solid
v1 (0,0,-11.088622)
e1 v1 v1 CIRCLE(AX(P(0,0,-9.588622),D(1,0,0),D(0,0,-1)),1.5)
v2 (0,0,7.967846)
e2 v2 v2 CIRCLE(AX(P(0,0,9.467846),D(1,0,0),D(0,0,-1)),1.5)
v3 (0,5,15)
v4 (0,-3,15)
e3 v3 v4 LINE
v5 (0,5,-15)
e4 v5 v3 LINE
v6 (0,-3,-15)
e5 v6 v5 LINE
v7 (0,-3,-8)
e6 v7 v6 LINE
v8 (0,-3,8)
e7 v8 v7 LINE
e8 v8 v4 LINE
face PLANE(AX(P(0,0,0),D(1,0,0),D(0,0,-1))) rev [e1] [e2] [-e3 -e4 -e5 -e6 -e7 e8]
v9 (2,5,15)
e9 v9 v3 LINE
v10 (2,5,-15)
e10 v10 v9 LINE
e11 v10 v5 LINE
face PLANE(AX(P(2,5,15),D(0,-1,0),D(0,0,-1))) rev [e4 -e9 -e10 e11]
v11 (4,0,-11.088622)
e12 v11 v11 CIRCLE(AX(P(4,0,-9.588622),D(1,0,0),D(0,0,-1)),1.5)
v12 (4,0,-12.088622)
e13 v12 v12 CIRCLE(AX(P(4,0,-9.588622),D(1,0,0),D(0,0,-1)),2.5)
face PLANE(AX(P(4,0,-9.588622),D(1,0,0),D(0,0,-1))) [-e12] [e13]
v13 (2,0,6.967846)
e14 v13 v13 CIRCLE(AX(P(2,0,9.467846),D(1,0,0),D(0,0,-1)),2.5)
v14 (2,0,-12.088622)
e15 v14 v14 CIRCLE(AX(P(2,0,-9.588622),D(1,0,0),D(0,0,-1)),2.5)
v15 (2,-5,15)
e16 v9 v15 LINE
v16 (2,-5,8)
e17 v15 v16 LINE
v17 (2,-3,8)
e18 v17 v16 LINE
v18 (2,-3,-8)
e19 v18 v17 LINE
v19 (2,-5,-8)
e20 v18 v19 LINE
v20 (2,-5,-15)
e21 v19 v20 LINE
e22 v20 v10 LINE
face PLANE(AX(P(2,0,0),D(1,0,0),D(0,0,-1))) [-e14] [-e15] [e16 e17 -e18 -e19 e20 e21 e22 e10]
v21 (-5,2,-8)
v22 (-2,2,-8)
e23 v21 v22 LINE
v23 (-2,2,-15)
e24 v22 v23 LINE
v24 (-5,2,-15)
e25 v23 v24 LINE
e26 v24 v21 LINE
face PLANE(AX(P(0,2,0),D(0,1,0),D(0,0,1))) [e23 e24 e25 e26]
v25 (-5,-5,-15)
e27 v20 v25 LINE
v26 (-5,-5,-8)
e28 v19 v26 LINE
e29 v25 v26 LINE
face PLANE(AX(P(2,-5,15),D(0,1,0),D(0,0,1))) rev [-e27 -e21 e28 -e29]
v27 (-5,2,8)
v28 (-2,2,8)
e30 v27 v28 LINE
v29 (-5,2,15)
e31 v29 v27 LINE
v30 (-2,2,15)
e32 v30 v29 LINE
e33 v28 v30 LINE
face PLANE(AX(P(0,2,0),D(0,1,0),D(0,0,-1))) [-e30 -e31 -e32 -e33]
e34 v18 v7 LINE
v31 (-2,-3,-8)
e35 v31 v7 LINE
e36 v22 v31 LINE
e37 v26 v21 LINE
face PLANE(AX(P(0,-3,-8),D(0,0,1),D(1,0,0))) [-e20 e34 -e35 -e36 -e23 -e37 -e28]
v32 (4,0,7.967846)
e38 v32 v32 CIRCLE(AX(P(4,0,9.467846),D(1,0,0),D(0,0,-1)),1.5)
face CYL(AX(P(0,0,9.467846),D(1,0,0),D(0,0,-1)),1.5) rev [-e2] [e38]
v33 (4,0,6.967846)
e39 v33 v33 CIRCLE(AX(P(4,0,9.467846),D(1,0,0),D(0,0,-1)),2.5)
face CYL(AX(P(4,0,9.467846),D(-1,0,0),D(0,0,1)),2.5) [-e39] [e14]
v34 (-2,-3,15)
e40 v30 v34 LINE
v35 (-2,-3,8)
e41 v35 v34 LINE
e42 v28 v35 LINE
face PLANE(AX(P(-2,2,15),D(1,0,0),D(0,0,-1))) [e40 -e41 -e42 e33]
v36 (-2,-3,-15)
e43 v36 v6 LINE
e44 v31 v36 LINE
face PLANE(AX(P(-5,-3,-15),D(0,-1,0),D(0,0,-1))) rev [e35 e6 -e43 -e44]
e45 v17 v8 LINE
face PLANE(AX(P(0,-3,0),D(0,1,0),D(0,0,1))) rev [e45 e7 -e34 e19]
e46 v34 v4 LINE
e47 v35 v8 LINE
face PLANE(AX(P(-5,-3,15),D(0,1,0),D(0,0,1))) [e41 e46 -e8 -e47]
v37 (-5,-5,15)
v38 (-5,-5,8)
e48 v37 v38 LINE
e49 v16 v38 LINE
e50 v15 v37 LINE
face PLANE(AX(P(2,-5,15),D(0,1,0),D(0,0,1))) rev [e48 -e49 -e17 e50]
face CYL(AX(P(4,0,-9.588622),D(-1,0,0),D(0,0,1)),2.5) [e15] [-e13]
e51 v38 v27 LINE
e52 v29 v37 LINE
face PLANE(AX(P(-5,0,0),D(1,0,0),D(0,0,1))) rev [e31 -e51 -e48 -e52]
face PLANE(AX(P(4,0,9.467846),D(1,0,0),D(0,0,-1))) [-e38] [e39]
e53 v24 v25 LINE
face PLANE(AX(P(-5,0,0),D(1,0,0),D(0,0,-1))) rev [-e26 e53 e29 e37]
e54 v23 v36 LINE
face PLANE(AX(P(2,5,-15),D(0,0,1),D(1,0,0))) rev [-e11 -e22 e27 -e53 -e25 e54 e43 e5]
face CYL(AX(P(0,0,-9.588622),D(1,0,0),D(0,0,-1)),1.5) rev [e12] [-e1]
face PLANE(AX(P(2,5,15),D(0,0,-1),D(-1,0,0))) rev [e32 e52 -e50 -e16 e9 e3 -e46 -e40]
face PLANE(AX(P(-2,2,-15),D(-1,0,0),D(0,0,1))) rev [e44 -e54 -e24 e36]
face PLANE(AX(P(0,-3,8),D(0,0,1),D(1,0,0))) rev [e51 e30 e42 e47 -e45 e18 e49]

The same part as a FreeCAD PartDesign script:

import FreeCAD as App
import Part
import Sketcher
Q = App.Units.Quantity


def add_polygon(sketch, points):
    """Adds a closed chain of lines whose ends are joined by coincident constraints."""
    first, n = sketch.GeometryCount, len(points)
    for a, b in zip(points, points[1:] + points[:1]):
        sketch.addGeometry(Part.LineSegment(App.Vector(*a, 0), App.Vector(*b, 0)), False)
    for i in range(n):
        sketch.addConstraint(Sketcher.Constraint("Coincident", first + i, 2, first + (i + 1) % n, 1))

doc = App.newDocument("Part")
body = doc.addObject("PartDesign::Body", "Body")

# Sketch on YZ plane
sketch1 = doc.addObject("Sketcher::SketchObject", "Sketch")
body.addObject(sketch1)
sketch1.AttachmentSupport = (doc.YZ_Plane, [""])
sketch1.MapMode = "FlatFace"
add_polygon(sketch1, [(5, 15), (-5, 15), (-5, -15), (5, -15)])  # lines 0-3
sketch1.addConstraint([
    Sketcher.Constraint("Horizontal", 0),
    Sketcher.Constraint("Vertical", 1),
    Sketcher.Constraint("Horizontal", 2),
    Sketcher.Constraint("Vertical", 3),
    Sketcher.Constraint("Symmetric", 0, 2, 2, 2, -1, 1),
    Sketcher.Constraint("DistanceX", 0, 2, 0, 1, Q("10 mm")),
    Sketcher.Constraint("DistanceY", 1, 2, 1, 1, Q("30 mm")),
])
pad1 = doc.addObject("PartDesign::Pad", "Pad")
body.addObject(pad1)
pad1.Profile = sketch1
pad1.Length = 2

# Sketch on YZ plane
sketch2 = doc.addObject("Sketcher::SketchObject", "Sketch001")
body.addObject(sketch2)
sketch2.AttachmentSupport = (doc.YZ_Plane, [""])
sketch2.MapMode = "FlatFace"
sketch2.AttachmentOffset = App.Placement(App.Vector(0, 0, 2), App.Rotation())
sketch2.addGeometry([
    Part.Circle(App.Vector(0, 9.5, 0), App.Vector(0, 0, 1), 2.5),
    Part.Circle(App.Vector(0, -9.6, 0), App.Vector(0, 0, 1), 2.5),
], False)
sketch2.addConstraint([
    Sketcher.Constraint("Equal", 0, 1),
    Sketcher.Constraint("PointOnObject", 0, 3, -2),
    Sketcher.Constraint("PointOnObject", 1, 3, -2),
    Sketcher.Constraint("Diameter", 0, Q("5 mm")),
    Sketcher.Constraint("DistanceY", 1, 3, 0, 3, Q("19.056469 mm")),
    Sketcher.Constraint("DistanceY", -1, 1, 0, 3, Q("9.467846 mm")),
])
pad2 = doc.addObject("PartDesign::Pad", "Pad001")
body.addObject(pad2)
pad2.Profile = sketch2
pad2.Length = 2

# Sketch on YZ plane
sketch3 = doc.addObject("Sketcher::SketchObject", "Sketch002")
body.addObject(sketch3)
sketch3.AttachmentSupport = (doc.YZ_Plane, [""])
sketch3.MapMode = "FlatFace"
sketch3.AttachmentOffset = App.Placement(App.Vector(0, 0, 4), App.Rotation())
sketch3.addGeometry(Part.Circle(App.Vector(0, 9.5, 0), App.Vector(0, 0, 1), 1.5), False)
sketch3.addConstraint([
    Sketcher.Constraint("PointOnObject", 0, 3, -2),
    Sketcher.Constraint("Diameter", 0, Q("3 mm")),
    Sketcher.Constraint("DistanceY", -1, 1, 0, 3, Q("9.467846 mm")),
])
pocket1 = doc.addObject("PartDesign::Pocket", "Pocket")
body.addObject(pocket1)
pocket1.Profile = sketch3
pocket1.Type = "ThroughAll"

# Sketch on YZ plane
sketch4 = doc.addObject("Sketcher::SketchObject", "Sketch003")
body.addObject(sketch4)
sketch4.AttachmentSupport = (doc.YZ_Plane, [""])
sketch4.MapMode = "FlatFace"
sketch4.AttachmentOffset = App.Placement(App.Vector(0, 0, 4), App.Rotation())
sketch4.addGeometry(Part.Circle(App.Vector(0, -9.6, 0), App.Vector(0, 0, 1), 1.5), False)
sketch4.addConstraint([
    Sketcher.Constraint("PointOnObject", 0, 3, -2),
    Sketcher.Constraint("Diameter", 0, Q("3 mm")),
    Sketcher.Constraint("DistanceY", 0, 3, -1, 1, Q("9.588622 mm")),
])
pocket2 = doc.addObject("PartDesign::Pocket", "Pocket001")
body.addObject(pocket2)
pocket2.Profile = sketch4
pocket2.Type = "ThroughAll"

# Sketch on XZ plane
sketch5 = doc.addObject("Sketcher::SketchObject", "Sketch004")
body.addObject(sketch5)
sketch5.AttachmentSupport = (doc.XZ_Plane, [""])
sketch5.MapMode = "FlatFace"
sketch5.AttachmentOffset = App.Placement(App.Vector(0, 0, 5), App.Rotation())
add_polygon(sketch5, [(0, 8), (0, 0), (2, 0), (2, 8)])  # lines 0-3
sketch5.addConstraint([
    Sketcher.Constraint("Vertical", 0),
    Sketcher.Constraint("Horizontal", 1),
    Sketcher.Constraint("Vertical", 2),
    Sketcher.Constraint("Horizontal", 3),
    Sketcher.Constraint("Coincident", 0, 2, -1, 1),
    Sketcher.Constraint("DistanceX", 1, 1, 1, 2, Q("2 mm")),
    Sketcher.Constraint("DistanceY", 0, 2, 0, 1, Q("8 mm")),
])
pocket3 = doc.addObject("PartDesign::Pocket", "Pocket002")
body.addObject(pocket3)
pocket3.Profile = sketch5
pocket3.Length = 2
doc.recompute()

mirrored = doc.addObject("PartDesign::Mirrored", "Mirrored")
body.addObject(mirrored)
mirrored.Originals = [pocket3]
mirrored.MirrorPlane = (doc.XY_Plane, [""])
body.Tip = mirrored

# Sketch on YZ plane
sketch6 = doc.addObject("Sketcher::SketchObject", "Sketch005")
body.addObject(sketch6)
sketch6.AttachmentSupport = (doc.YZ_Plane, [""])
sketch6.MapMode = "FlatFace"
add_polygon(sketch6, [(-3, -15), (-5, -15), (-5, -8), (-3, -8)])  # lines 0-3
sketch6.addConstraint([
    Sketcher.Constraint("Horizontal", 0),
    Sketcher.Constraint("Vertical", 1),
    Sketcher.Constraint("Horizontal", 2),
    Sketcher.Constraint("Vertical", 3),
    Sketcher.Constraint("DistanceX", 0, 2, 0, 1, Q("2 mm")),
    Sketcher.Constraint("DistanceY", 1, 1, 1, 2, Q("7 mm")),
    Sketcher.Constraint("DistanceX", 0, 2, -1, 1, Q("5 mm")),
    Sketcher.Constraint("DistanceY", 0, 2, -1, 1, Q("15 mm")),
])
pad3 = doc.addObject("PartDesign::Pad", "Pad002")
body.addObject(pad3)
pad3.Profile = sketch6
pad3.Length = 5
pad3.Reversed = True

# Sketch on XZ plane
sketch7 = doc.addObject("Sketcher::SketchObject", "Sketch006")
body.addObject(sketch7)
sketch7.AttachmentSupport = (doc.XZ_Plane, [""])
sketch7.MapMode = "FlatFace"
sketch7.AttachmentOffset = App.Placement(App.Vector(0, 0, 3), App.Rotation())
add_polygon(sketch7, [(-5, -15), (-5, -8), (-2, -8), (-2, -15)])  # lines 0-3
sketch7.addConstraint([
    Sketcher.Constraint("Vertical", 0),
    Sketcher.Constraint("Horizontal", 1),
    Sketcher.Constraint("Vertical", 2),
    Sketcher.Constraint("Horizontal", 3),
    Sketcher.Constraint("DistanceX", 1, 1, 1, 2, Q("3 mm")),
    Sketcher.Constraint("DistanceY", 0, 1, 0, 2, Q("7 mm")),
    Sketcher.Constraint("DistanceX", 0, 2, -1, 1, Q("5 mm")),
    Sketcher.Constraint("DistanceY", 0, 2, -1, 1, Q("8 mm")),
])
pad4 = doc.addObject("PartDesign::Pad", "Pad003")
body.addObject(pad4)
pad4.Profile = sketch7
pad4.Length = 5
pad4.Reversed = True
doc.recompute()

mirrored2 = doc.addObject("PartDesign::Mirrored", "Mirrored001")
body.addObject(mirrored2)
mirrored2.Originals = [pad3, pad4]
mirrored2.MirrorPlane = (doc.XY_Plane, [""])
body.Tip = mirrored2

doc.recompute()
